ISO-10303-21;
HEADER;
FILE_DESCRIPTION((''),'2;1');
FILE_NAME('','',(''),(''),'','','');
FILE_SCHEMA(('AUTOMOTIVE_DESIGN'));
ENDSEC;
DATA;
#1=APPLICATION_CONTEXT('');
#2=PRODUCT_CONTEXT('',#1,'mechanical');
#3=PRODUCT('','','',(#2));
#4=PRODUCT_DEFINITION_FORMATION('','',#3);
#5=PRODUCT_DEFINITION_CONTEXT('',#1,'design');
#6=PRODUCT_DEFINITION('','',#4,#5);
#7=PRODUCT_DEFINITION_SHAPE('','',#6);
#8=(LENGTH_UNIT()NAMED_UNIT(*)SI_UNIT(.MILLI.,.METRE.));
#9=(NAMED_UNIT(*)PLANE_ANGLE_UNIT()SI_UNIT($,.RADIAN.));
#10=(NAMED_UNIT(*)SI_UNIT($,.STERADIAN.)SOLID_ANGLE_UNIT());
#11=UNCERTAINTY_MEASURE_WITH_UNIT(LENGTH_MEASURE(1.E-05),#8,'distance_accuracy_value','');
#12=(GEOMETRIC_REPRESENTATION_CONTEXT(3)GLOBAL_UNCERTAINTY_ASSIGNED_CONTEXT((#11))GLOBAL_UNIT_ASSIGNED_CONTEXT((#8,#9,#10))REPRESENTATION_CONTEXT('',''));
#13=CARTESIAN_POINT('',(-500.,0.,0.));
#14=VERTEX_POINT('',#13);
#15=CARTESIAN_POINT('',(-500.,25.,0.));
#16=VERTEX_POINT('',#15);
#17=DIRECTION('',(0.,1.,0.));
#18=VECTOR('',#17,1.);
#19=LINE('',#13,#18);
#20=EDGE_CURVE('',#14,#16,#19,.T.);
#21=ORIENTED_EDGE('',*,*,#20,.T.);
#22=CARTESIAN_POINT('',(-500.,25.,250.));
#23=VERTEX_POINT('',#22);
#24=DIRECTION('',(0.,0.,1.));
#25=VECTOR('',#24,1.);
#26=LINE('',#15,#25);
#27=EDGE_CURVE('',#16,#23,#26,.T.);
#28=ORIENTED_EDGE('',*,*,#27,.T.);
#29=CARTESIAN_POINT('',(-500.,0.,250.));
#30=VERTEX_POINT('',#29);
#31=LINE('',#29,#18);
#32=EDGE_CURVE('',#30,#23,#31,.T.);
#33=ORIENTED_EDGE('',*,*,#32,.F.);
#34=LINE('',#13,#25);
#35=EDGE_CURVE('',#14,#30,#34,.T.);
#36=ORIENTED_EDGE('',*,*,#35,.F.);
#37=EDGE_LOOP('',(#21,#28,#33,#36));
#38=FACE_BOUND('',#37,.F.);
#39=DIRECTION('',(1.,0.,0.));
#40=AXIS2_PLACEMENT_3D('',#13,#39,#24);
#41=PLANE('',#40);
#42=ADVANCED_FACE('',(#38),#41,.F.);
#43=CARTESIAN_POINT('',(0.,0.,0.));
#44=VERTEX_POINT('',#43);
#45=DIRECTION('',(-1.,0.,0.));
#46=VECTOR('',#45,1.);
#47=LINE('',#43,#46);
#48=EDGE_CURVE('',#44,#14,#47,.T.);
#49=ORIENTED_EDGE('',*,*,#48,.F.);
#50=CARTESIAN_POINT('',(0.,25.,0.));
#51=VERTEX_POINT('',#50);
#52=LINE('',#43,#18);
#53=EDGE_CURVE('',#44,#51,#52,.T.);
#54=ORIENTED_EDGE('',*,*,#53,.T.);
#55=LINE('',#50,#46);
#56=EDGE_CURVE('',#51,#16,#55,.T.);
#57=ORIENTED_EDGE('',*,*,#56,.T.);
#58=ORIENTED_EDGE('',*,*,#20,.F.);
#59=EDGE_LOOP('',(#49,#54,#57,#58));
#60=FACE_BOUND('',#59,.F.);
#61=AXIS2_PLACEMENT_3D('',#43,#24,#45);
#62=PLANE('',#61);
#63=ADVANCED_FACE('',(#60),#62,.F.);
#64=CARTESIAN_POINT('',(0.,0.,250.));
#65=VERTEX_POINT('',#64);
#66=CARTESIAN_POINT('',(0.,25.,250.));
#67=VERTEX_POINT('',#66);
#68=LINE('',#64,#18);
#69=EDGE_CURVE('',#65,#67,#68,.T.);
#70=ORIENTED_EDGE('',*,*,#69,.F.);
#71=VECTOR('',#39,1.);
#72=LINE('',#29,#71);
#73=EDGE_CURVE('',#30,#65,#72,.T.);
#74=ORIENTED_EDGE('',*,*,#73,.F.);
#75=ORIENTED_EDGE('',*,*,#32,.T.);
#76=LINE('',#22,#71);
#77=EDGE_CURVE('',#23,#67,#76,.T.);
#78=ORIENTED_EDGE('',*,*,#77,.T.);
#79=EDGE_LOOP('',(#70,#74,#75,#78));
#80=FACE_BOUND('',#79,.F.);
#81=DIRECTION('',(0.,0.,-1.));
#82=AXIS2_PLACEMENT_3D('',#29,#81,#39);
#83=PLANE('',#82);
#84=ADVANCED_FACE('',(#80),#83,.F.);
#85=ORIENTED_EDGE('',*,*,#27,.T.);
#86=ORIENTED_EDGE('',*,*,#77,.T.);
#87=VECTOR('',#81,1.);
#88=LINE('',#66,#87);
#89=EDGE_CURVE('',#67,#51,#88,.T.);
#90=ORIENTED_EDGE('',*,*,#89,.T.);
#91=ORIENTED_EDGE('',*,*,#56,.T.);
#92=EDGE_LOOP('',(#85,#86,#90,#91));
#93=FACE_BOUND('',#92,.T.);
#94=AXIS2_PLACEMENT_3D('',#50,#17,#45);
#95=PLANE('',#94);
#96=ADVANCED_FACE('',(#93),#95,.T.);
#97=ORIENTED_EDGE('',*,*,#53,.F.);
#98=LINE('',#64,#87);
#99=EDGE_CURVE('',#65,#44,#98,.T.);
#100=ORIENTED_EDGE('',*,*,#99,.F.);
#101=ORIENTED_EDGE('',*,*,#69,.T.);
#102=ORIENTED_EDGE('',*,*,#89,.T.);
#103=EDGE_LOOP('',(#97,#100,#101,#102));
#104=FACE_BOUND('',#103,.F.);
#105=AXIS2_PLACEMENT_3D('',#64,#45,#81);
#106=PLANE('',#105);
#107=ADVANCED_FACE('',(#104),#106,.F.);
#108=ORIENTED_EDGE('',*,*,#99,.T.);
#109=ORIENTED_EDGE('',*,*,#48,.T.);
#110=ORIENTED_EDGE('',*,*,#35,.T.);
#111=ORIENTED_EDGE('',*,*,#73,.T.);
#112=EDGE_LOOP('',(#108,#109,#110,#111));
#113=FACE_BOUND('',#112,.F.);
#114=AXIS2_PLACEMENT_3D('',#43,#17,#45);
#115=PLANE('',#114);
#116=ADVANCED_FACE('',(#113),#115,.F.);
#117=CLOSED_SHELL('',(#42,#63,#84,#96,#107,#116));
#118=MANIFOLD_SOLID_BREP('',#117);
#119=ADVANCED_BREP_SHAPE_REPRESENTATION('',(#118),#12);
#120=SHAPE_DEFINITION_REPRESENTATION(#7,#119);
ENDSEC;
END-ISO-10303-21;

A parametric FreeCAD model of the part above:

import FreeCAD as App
import Part
import Sketcher


def add_polygon(sketch, points):
    """Adds a closed chain of lines whose ends are joined by coincident constraints."""
    first, n = sketch.GeometryCount, len(points)
    for a, b in zip(points, points[1:] + points[:1]):
        sketch.addGeometry(Part.LineSegment(App.Vector(*a, 0), App.Vector(*b, 0)), False)
    for i in range(n):
        sketch.addConstraint(Sketcher.Constraint("Coincident", first + i, 2, first + (i + 1) % n, 1))

doc = App.newDocument("Part")
body = doc.addObject("PartDesign::Body", "Body")

sketch1 = body.newObject("Sketcher::SketchObject", "Sketch")
sketch1.AttachmentSupport = (doc.getObject("XZ_Plane"), [""])
sketch1.MapMode = "FlatFace"
add_polygon(sketch1, [(0, 250), (0, 0), (-500, 0), (-500, 250)])
sketch1.addConstraint([
    Sketcher.Constraint("Vertical", 0),
    Sketcher.Constraint("Horizontal", 1),
    Sketcher.Constraint("Vertical", 2),
    Sketcher.Constraint("Horizontal", 3),
    Sketcher.Constraint("Coincident", 0, 2, -1, 1),
    Sketcher.Constraint("DistanceX", 1, 2, 1, 1, 500.0),
    Sketcher.Constraint("DistanceY", 0, 2, 0, 1, 250.0),
])
pad1 = body.newObject("PartDesign::Pad", "Pad")
pad1.Profile = sketch1
pad1.Length = 25
pad1.Reversed = True

doc.recompute()
